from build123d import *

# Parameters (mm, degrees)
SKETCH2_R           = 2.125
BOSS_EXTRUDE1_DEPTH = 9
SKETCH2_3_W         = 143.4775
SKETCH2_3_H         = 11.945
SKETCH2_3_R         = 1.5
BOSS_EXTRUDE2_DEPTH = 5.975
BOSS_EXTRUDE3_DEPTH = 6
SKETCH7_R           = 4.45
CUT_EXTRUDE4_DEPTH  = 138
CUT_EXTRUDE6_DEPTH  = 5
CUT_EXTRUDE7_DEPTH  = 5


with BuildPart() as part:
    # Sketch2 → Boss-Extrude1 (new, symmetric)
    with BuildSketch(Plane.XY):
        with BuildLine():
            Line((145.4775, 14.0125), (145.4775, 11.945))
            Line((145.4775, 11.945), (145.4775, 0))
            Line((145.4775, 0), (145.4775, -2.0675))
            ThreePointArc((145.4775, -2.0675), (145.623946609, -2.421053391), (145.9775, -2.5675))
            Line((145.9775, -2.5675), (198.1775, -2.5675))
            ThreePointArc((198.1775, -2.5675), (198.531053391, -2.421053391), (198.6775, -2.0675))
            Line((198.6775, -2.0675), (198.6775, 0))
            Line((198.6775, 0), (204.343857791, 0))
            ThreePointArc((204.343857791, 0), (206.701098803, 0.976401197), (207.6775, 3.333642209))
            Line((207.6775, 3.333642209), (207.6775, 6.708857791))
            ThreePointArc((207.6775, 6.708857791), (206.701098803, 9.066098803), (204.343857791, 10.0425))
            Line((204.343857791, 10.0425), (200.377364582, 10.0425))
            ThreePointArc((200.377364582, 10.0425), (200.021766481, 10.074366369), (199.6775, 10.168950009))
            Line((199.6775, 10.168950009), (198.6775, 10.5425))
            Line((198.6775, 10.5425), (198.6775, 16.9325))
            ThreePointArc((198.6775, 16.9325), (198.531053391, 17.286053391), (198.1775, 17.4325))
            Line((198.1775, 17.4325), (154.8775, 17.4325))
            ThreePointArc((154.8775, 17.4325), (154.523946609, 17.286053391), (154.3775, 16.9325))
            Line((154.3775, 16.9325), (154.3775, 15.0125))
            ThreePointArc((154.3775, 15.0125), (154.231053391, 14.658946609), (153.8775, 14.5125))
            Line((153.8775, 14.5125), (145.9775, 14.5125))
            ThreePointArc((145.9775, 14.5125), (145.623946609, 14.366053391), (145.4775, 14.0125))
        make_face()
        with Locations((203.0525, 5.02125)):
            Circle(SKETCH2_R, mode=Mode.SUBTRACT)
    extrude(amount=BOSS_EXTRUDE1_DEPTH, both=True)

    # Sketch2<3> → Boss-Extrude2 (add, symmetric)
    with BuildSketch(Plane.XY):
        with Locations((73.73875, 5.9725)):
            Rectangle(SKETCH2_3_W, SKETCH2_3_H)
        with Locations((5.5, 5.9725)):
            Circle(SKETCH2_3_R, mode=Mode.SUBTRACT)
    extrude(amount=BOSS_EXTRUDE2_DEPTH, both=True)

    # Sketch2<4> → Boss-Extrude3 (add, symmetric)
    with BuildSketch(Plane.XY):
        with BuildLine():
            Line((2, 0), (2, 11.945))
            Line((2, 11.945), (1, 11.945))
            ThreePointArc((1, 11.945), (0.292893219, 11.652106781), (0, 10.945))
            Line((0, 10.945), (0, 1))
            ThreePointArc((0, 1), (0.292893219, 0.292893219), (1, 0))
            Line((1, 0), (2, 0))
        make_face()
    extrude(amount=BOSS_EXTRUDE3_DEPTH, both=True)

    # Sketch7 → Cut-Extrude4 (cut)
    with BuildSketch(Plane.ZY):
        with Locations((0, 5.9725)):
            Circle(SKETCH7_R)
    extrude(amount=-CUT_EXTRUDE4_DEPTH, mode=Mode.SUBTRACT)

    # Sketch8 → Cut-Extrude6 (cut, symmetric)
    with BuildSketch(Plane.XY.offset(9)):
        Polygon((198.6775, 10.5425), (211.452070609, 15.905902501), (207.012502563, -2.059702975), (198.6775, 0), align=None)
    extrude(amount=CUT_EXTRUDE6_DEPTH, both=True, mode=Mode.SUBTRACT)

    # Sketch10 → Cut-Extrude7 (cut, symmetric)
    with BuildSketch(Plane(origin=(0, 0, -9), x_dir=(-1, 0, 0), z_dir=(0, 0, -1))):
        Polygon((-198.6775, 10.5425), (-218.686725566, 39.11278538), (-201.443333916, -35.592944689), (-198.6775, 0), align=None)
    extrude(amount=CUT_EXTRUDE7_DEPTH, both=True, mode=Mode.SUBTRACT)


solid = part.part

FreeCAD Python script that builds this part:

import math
import FreeCAD as App
import Part
import Sketcher
from FreeCAD import Vector
Q = App.Units.Quantity

doc = App.newDocument("Part")
body = doc.addObject("PartDesign::Body", "Body")

sketch1 = body.newObject("Sketcher::SketchObject", "Sketch")
sketch1.AttachmentSupport = (doc.getObject("XY_Plane"), [""])
sketch1.MapMode = "FlatFace"
sketch1.addGeometry(Part.LineSegment(Vector(145.48, 14.01, 0), Vector(145.48, -2.07, 0)), False)
sketch1.addGeometry(Part.ArcOfCircle(Part.Circle(Vector(145.98, -2.07, 0), Vector(0, 0, 1), 0.5), math.radians(180), math.radians(270)), False)
sketch1.addGeometry(Part.LineSegment(Vector(145.98, -2.57, 0), Vector(198.18, -2.57, 0)), False)
sketch1.addGeometry(Part.ArcOfCircle(Part.Circle(Vector(198.18, -2.07, 0), Vector(0, 0, 1), 0.5), math.radians(-90), math.radians(0)), False)
sketch1.addGeometry(Part.LineSegment(Vector(198.68, -2.07, 0), Vector(198.68, 0, 0)), False)
sketch1.addGeometry(Part.LineSegment(Vector(198.68, 0, 0), Vector(204.34, 0, 0)), False)
sketch1.addGeometry(Part.ArcOfCircle(Part.Circle(Vector(204.34, 3.33, 0), Vector(0, 0, 1), 3.33), math.radians(-90), math.radians(0)), False)
sketch1.addGeometry(Part.LineSegment(Vector(207.68, 3.33, 0), Vector(207.68, 6.71, 0)), False)
sketch1.addGeometry(Part.ArcOfCircle(Part.Circle(Vector(204.34, 6.71, 0), Vector(0, 0, 1), 3.33), math.radians(0), math.radians(90)), False)
sketch1.addGeometry(Part.LineSegment(Vector(204.34, 10.04, 0), Vector(200.38, 10.04, 0)), False)
sketch1.addGeometry(Part.ArcOfCircle(Part.Circle(Vector(200.38, 12.04, 0), Vector(0, 0, 1), 2), math.radians(-110), math.radians(-90)), False)
sketch1.addGeometry(Part.LineSegment(Vector(199.68, 10.17, 0), Vector(198.68, 10.54, 0)), False)
sketch1.addGeometry(Part.LineSegment(Vector(198.68, 10.54, 0), Vector(198.68, 16.93, 0)), False)
sketch1.addGeometry(Part.ArcOfCircle(Part.Circle(Vector(198.18, 16.93, 0), Vector(0, 0, 1), 0.5), math.radians(0), math.radians(90)), False)
sketch1.addGeometry(Part.LineSegment(Vector(198.18, 17.43, 0), Vector(154.88, 17.43, 0)), False)
sketch1.addGeometry(Part.ArcOfCircle(Part.Circle(Vector(154.88, 16.93, 0), Vector(0, 0, 1), 0.5), math.radians(90), math.radians(180)), False)
sketch1.addGeometry(Part.LineSegment(Vector(154.38, 16.93, 0), Vector(154.38, 15.01, 0)), False)
sketch1.addGeometry(Part.ArcOfCircle(Part.Circle(Vector(153.88, 15.01, 0), Vector(0, 0, 1), 0.5), math.radians(-90), math.radians(0)), False)
sketch1.addGeometry(Part.LineSegment(Vector(153.88, 14.51, 0), Vector(145.98, 14.51, 0)), False)
sketch1.addGeometry(Part.ArcOfCircle(Part.Circle(Vector(145.98, 14.01, 0), Vector(0, 0, 1), 0.5), math.radians(90), math.radians(180)), False)
sketch1.addGeometry(Part.Circle(Vector(203.05, 5.02, 0), Vector(0, 0, 1), 2.12), False)
sketch1.addConstraint(Sketcher.Constraint("Tangent", 0, 2, 1, 1))
sketch1.addConstraint(Sketcher.Constraint("Tangent", 1, 2, 2, 1))
sketch1.addConstraint(Sketcher.Constraint("Tangent", 2, 2, 3, 1))
sketch1.addConstraint(Sketcher.Constraint("Tangent", 3, 2, 4, 1))
sketch1.addConstraint(Sketcher.Constraint("Coincident", 4, 2, 5, 1))
sketch1.addConstraint(Sketcher.Constraint("Tangent", 5, 2, 6, 1))
sketch1.addConstraint(Sketcher.Constraint("Tangent", 6, 2, 7, 1))
sketch1.addConstraint(Sketcher.Constraint("Tangent", 7, 2, 8, 1))
sketch1.addConstraint(Sketcher.Constraint("Tangent", 8, 2, 9, 1))
sketch1.addConstraint(Sketcher.Constraint("Tangent", 9, 2, 10, 2))
sketch1.addConstraint(Sketcher.Constraint("Tangent", 10, 1, 11, 1))
sketch1.addConstraint(Sketcher.Constraint("Coincident", 11, 2, 12, 1))
sketch1.addConstraint(Sketcher.Constraint("Tangent", 12, 2, 13, 1))
sketch1.addConstraint(Sketcher.Constraint("Tangent", 13, 2, 14, 1))
sketch1.addConstraint(Sketcher.Constraint("Tangent", 14, 2, 15, 1))
sketch1.addConstraint(Sketcher.Constraint("Tangent", 15, 2, 16, 1))
sketch1.addConstraint(Sketcher.Constraint("Tangent", 16, 2, 17, 2))
sketch1.addConstraint(Sketcher.Constraint("Tangent", 17, 1, 18, 1))
sketch1.addConstraint(Sketcher.Constraint("Tangent", 18, 2, 19, 1))
sketch1.addConstraint(Sketcher.Constraint("Tangent", 19, 2, 0, 1))
sketch1.addConstraint(Sketcher.Constraint("Vertical", 0))
sketch1.addConstraint(Sketcher.Constraint("Horizontal", 2))
sketch1.addConstraint(Sketcher.Constraint("Vertical", 4))
sketch1.addConstraint(Sketcher.Constraint("Horizontal", 5))
sketch1.addConstraint(Sketcher.Constraint("Vertical", 7))
sketch1.addConstraint(Sketcher.Constraint("Horizontal", 9))
sketch1.addConstraint(Sketcher.Constraint("Vertical", 12))
sketch1.addConstraint(Sketcher.Constraint("Horizontal", 14))
sketch1.addConstraint(Sketcher.Constraint("Vertical", 16))
sketch1.addConstraint(Sketcher.Constraint("Horizontal", 18))
sketch1.addConstraint(Sketcher.Constraint("Equal", 1, 3))
sketch1.addConstraint(Sketcher.Constraint("Equal", 6, 8))
sketch1.addConstraint(Sketcher.Constraint("Equal", 3, 13))
sketch1.addConstraint(Sketcher.Constraint("Equal", 13, 15))
sketch1.addConstraint(Sketcher.Constraint("Equal", 15, 17))
sketch1.addConstraint(Sketcher.Constraint("Equal", 17, 19))
sketch1.addConstraint(Sketcher.Constraint("PointOnObject", 4, 2, -1))
sketch1.addConstraint(Sketcher.Constraint("Vertical", 3, 3, 13, 3))
sketch1.addConstraint(Sketcher.Constraint("Radius", 10, Q("2 mm")))
sketch1.addConstraint(Sketcher.Constraint("Radius", 1, Q("0.5 mm")))
sketch1.addConstraint(Sketcher.Constraint("Diameter", 20, Q("4.25 mm")))
sketch1.addConstraint(Sketcher.Constraint("DistanceX", 2, 1, 2, 2, Q("52.2 mm")))
sketch1.addConstraint(Sketcher.Constraint("DistanceX", 14, 2, 14, 1, Q("43.3 mm")))
sketch1.addConstraint(Sketcher.Constraint("DistanceY", 3, 3, 13, 3, Q("19 mm")))
sketch1.addConstraint(Sketcher.Constraint("DistanceX", 4, 2, 6, 2, Q("9 mm")))
sketch1.addConstraint(Sketcher.Constraint("DistanceX", 11, 2, 10, 1, Q("1 mm")))
sketch1.addConstraint(Sketcher.Constraint("DistanceY", 0, 2, 0, 1, Q("16.08 mm")))
sketch1.addConstraint(Sketcher.Constraint("DistanceY", 12, 1, 12, 2, Q("6.39 mm")))
sketch1.addConstraint(Sketcher.Constraint("DistanceY", 9, 2, 11, 2, Q("0.5 mm")))
sketch1.addConstraint(Sketcher.Constraint("DistanceY", 4, 1, 4, 2, Q("2.0675 mm")))
sketch1.addConstraint(Sketcher.Constraint("Radius", 6, Q("3.333642 mm")))
sketch1.addConstraint(Sketcher.Constraint("DistanceX", 3, 3, 20, 3, Q("4.875 mm")))
sketch1.addConstraint(Sketcher.Constraint("DistanceX", -1, 1, 1, 3, Q("145.9775 mm")))
sketch1.addConstraint(Sketcher.Constraint("DistanceY", 20, 3, 10, 1, Q("5.1477 mm")))
pad1 = body.newObject("PartDesign::Pad", "Pad")
pad1.Profile = sketch1
pad1.Length = 18
pad1.Midplane = True

sketch2 = body.newObject("Sketcher::SketchObject", "Sketch001")
sketch2.AttachmentSupport = (doc.getObject("XY_Plane"), [""])
sketch2.MapMode = "FlatFace"
sketch2.addGeometry(Part.LineSegment(Vector(2, 11.9, 0), Vector(2, 0, 0)), False)
sketch2.addGeometry(Part.LineSegment(Vector(2, 0, 0), Vector(145.5, 0, 0)), False)
sketch2.addGeometry(Part.LineSegment(Vector(145.5, 0, 0), Vector(145.5, 11.9, 0)), False)
sketch2.addGeometry(Part.LineSegment(Vector(145.5, 11.9, 0), Vector(2, 11.9, 0)), False)
sketch2.addGeometry(Part.Circle(Vector(5.5, 6, 0), Vector(0, 0, 1), 1.5), False)
sketch2.addConstraint(Sketcher.Constraint("Coincident", 0, 2, 1, 1))
sketch2.addConstraint(Sketcher.Constraint("Coincident", 1, 2, 2, 1))
sketch2.addConstraint(Sketcher.Constraint("Coincident", 2, 2, 3, 1))
sketch2.addConstraint(Sketcher.Constraint("Coincident", 3, 2, 0, 1))
sketch2.addConstraint(Sketcher.Constraint("Vertical", 0))
sketch2.addConstraint(Sketcher.Constraint("Horizontal", 1))
sketch2.addConstraint(Sketcher.Constraint("Vertical", 2))
sketch2.addConstraint(Sketcher.Constraint("Horizontal", 3))
sketch2.addConstraint(Sketcher.Constraint("PointOnObject", 0, 2, -1))
sketch2.addConstraint(Sketcher.Constraint("Diameter", 4, Q("3 mm")))
sketch2.addConstraint(Sketcher.Constraint("DistanceX", -1, 1, 0, 2, Q("2 mm")))
sketch2.addConstraint(Sketcher.Constraint("DistanceX", -1, 1, 4, 3, Q("5.5 mm")))
sketch2.addConstraint(Sketcher.Constraint("DistanceY", 0, 2, 0, 1, Q("11.945 mm")))
sketch2.addConstraint(Sketcher.Constraint("DistanceX", 1, 1, 1, 2, Q("143.4775 mm")))
sketch2.addConstraint(Sketcher.Constraint("DistanceY", -1, 1, 4, 3, Q("5.9725 mm")))
pad2 = body.newObject("PartDesign::Pad", "Pad001")
pad2.Profile = sketch2
pad2.Length = 11.95
pad2.Midplane = True

sketch3 = body.newObject("Sketcher::SketchObject", "Sketch002")
sketch3.AttachmentSupport = (doc.getObject("XY_Plane"), [""])
sketch3.MapMode = "FlatFace"
sketch3.addGeometry(Part.LineSegment(Vector(2, 0, 0), Vector(2, 11.9, 0)), False)
sketch3.addGeometry(Part.LineSegment(Vector(2, 11.9, 0), Vector(1, 11.9, 0)), False)
sketch3.addGeometry(Part.ArcOfCircle(Part.Circle(Vector(1, 10.9, 0), Vector(0, 0, 1), 1), math.radians(90), math.radians(180)), False)
sketch3.addGeometry(Part.LineSegment(Vector(0, 10.9, 0), Vector(0, 1, 0)), False)
sketch3.addGeometry(Part.ArcOfCircle(Part.Circle(Vector(1, 1, 0), Vector(0, 0, 1), 1), math.radians(-180), math.radians(-90)), False)
sketch3.addGeometry(Part.LineSegment(Vector(1, 0, 0), Vector(2, 0, 0)), False)
sketch3.addConstraint(Sketcher.Constraint("Coincident", 0, 2, 1, 1))
sketch3.addConstraint(Sketcher.Constraint("Tangent", 1, 2, 2, 1))
sketch3.addConstraint(Sketcher.Constraint("Tangent", 2, 2, 3, 1))
sketch3.addConstraint(Sketcher.Constraint("Tangent", 3, 2, 4, 1))
sketch3.addConstraint(Sketcher.Constraint("Tangent", 4, 2, 5, 1))
sketch3.addConstraint(Sketcher.Constraint("Coincident", 5, 2, 0, 1))
sketch3.addConstraint(Sketcher.Constraint("Vertical", 0))
sketch3.addConstraint(Sketcher.Constraint("Horizontal", 1))
sketch3.addConstraint(Sketcher.Constraint("Vertical", 3))
sketch3.addConstraint(Sketcher.Constraint("Horizontal", 5))
sketch3.addConstraint(Sketcher.Constraint("Equal", 2, 4))
sketch3.addConstraint(Sketcher.Constraint("PointOnObject", 2, 2, -2))
sketch3.addConstraint(Sketcher.Constraint("PointOnObject", 4, 2, -1))
sketch3.addConstraint(Sketcher.Constraint("Radius", 2, Q("1 mm")))
sketch3.addConstraint(Sketcher.Constraint("DistanceX", 1, 2, 1, 1, Q("1 mm")))
sketch3.addConstraint(Sketcher.Constraint("DistanceY", 0, 1, 0, 2, Q("11.945 mm")))
pad3 = body.newObject("PartDesign::Pad", "Pad002")
pad3.Profile = sketch3
pad3.Length = 12
pad3.Midplane = True

sketch4 = body.newObject("Sketcher::SketchObject", "Sketch003")
sketch4.AttachmentSupport = (doc.getObject("YZ_Plane"), [""])
sketch4.MapMode = "FlatFace"
sketch4.addGeometry(Part.Circle(Vector(6, 0, 0), Vector(0, 0, 1), 4.5), False)
sketch4.addConstraint(Sketcher.Constraint("PointOnObject", 0, 3, -1))
sketch4.addConstraint(Sketcher.Constraint("Diameter", 0, Q("8.9 mm")))
sketch4.addConstraint(Sketcher.Constraint("DistanceX", -1, 1, 0, 3, Q("5.9725 mm")))
pocket1 = body.newObject("PartDesign::Pocket", "Pocket")
pocket1.Profile = sketch4
pocket1.Length = 138
pocket1.Reversed = True

sketch5 = body.newObject("Sketcher::SketchObject", "Sketch004")
sketch5.AttachmentSupport = (doc.getObject("XY_Plane"), [""])
sketch5.MapMode = "FlatFace"
sketch5.AttachmentOffset = App.Placement(Vector(0, 0, 9), App.Rotation())
sketch5.addGeometry(Part.LineSegment(Vector(211, 16, 0), Vector(199, 11, 0)), False)
sketch5.addGeometry(Part.LineSegment(Vector(199, 11, 0), Vector(199, 0, 0)), False)
sketch5.addGeometry(Part.LineSegment(Vector(199, 0, 0), Vector(207, -2, 0)), False)
sketch5.addGeometry(Part.LineSegment(Vector(207, -2, 0), Vector(211, 16, 0)), False)
sketch5.addConstraint(Sketcher.Constraint("Coincident", 0, 2, 1, 1))
sketch5.addConstraint(Sketcher.Constraint("Coincident", 1, 2, 2, 1))
sketch5.addConstraint(Sketcher.Constraint("Coincident", 2, 2, 3, 1))
sketch5.addConstraint(Sketcher.Constraint("Coincident", 3, 2, 0, 1))
sketch5.addConstraint(Sketcher.Constraint("Vertical", 1))
sketch5.addConstraint(Sketcher.Constraint("PointOnObject", 1, 2, -1))
sketch5.addConstraint(Sketcher.Constraint("Perpendicular", 2, 3))
sketch5.addConstraint(Sketcher.Constraint("DistanceY", 1, 2, 1, 1, Q("10.5425 mm")))
sketch5.addConstraint(Sketcher.Constraint("DistanceX", -1, 1, 0, 2, Q("198.6775 mm")))
sketch5.addConstraint(Sketcher.Constraint("Distance", 0, Q("13.854809 mm")))
sketch5.addConstraint(Sketcher.Constraint("Distance", 3, Q("18.506019 mm")))
sketch5.addConstraint(Sketcher.Constraint("DistanceX", -1, 1, 3, 2, Q("211.452071 mm")))
pocket2 = body.newObject("PartDesign::Pocket", "Pocket001")
pocket2.Profile = sketch5
pocket2.Length = 10
pocket2.Midplane = True

sketch6 = body.newObject("Sketcher::SketchObject", "Sketch005")
sketch6.AttachmentSupport = (doc.getObject("XY_Plane"), [""])
sketch6.MapMode = "FlatFace"
sketch6.AttachmentOffset = App.Placement(Vector(0, 0, -9), App.Rotation())
sketch6.addGeometry(Part.LineSegment(Vector(199, 11, 0), Vector(219, 39, 0)), False)
sketch6.addGeometry(Part.LineSegment(Vector(219, 39, 0), Vector(201, -36, 0)), False)
sketch6.addGeometry(Part.LineSegment(Vector(201, -36, 0), Vector(199, 0, 0)), False)
sketch6.addGeometry(Part.LineSegment(Vector(199, 0, 0), Vector(199, 11, 0)), False)
sketch6.addConstraint(Sketcher.Constraint("Coincident", 0, 2, 1, 1))
sketch6.addConstraint(Sketcher.Constraint("Coincident", 1, 2, 2, 1))
sketch6.addConstraint(Sketcher.Constraint("Coincident", 2, 2, 3, 1))
sketch6.addConstraint(Sketcher.Constraint("Coincident", 3, 2, 0, 1))
sketch6.addConstraint(Sketcher.Constraint("Vertical", 3))
sketch6.addConstraint(Sketcher.Constraint("PointOnObject", 2, 2, -1))
sketch6.addConstraint(Sketcher.Constraint("DistanceY", 3, 1, 3, 2, Q("10.5425 mm")))
sketch6.addConstraint(Sketcher.Constraint("DistanceX", -1, 1, 2, 2, Q("198.6775 mm")))
sketch6.addConstraint(Sketcher.Constraint("Distance", 0, Q("34.880228 mm")))
sketch6.addConstraint(Sketcher.Constraint("DistanceX", 1, 2, 0, 2, Q("17.243392 mm")))
sketch6.addConstraint(Sketcher.Constraint("DistanceY", 1, 2, 0, 2, Q("74.70573 mm")))
sketch6.addConstraint(Sketcher.Constraint("Distance", 2, Q("35.700246 mm")))
pocket3 = body.newObject("PartDesign::Pocket", "Pocket002")
pocket3.Profile = sketch6
pocket3.Length = 10
pocket3.Midplane = True

doc.recompute()
